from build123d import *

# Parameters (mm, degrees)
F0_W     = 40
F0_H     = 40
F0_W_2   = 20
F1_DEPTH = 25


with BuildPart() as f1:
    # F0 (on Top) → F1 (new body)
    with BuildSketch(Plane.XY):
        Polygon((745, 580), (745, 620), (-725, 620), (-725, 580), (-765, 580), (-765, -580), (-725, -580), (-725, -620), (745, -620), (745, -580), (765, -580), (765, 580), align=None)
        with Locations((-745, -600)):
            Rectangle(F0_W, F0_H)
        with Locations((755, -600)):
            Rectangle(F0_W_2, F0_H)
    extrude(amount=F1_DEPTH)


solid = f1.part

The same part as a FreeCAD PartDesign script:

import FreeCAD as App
import Part
import Sketcher
Q = App.Units.Quantity

doc = App.newDocument("Part")
body = doc.addObject("PartDesign::Body", "Body")

# Sketch on XY plane
sketch1 = body.newObject("Sketcher::SketchObject", "Sketch")
sketch1.AttachmentSupport = (doc.getObject("XY_Plane"), [""])
sketch1.MapMode = "FlatFace"
sketch1.addGeometry([
    Part.LineSegment(App.Vector(745, 580, 0), App.Vector(745, 620, 0)),  # 0
    Part.LineSegment(App.Vector(745, 620, 0), App.Vector(-725, 620, 0)),  # 1
    Part.LineSegment(App.Vector(-725, 620, 0), App.Vector(-725, 580, 0)),  # 2
    Part.LineSegment(App.Vector(-725, 580, 0), App.Vector(-765, 580, 0)),  # 3
    Part.LineSegment(App.Vector(-765, 580, 0), App.Vector(-765, -620, 0)),  # 4
    Part.LineSegment(App.Vector(-765, -620, 0), App.Vector(765, -620, 0)),  # 5
    Part.LineSegment(App.Vector(765, -620, 0), App.Vector(765, 580, 0)),  # 6
    Part.LineSegment(App.Vector(765, 580, 0), App.Vector(745, 580, 0)),  # 7
], False)
sketch1.addConstraint([
    Sketcher.Constraint("Coincident", 0, 2, 1, 1),
    Sketcher.Constraint("Coincident", 1, 2, 2, 1),
    Sketcher.Constraint("Coincident", 2, 2, 3, 1),
    Sketcher.Constraint("Coincident", 3, 2, 4, 1),
    Sketcher.Constraint("Coincident", 4, 2, 5, 1),
    Sketcher.Constraint("Coincident", 5, 2, 6, 1),
    Sketcher.Constraint("Coincident", 6, 2, 7, 1),
    Sketcher.Constraint("Coincident", 7, 2, 0, 1),
    Sketcher.Constraint("Vertical", 0),
    Sketcher.Constraint("Horizontal", 1),
    Sketcher.Constraint("Vertical", 2),
    Sketcher.Constraint("Horizontal", 3),
    Sketcher.Constraint("Vertical", 4),
    Sketcher.Constraint("Horizontal", 5),
    Sketcher.Constraint("Vertical", 6),
    Sketcher.Constraint("Horizontal", 7),
    Sketcher.Constraint("Symmetric", 3, 2, 6, 2, -2),
    Sketcher.Constraint("Equal", 3, 0),
    Sketcher.Constraint("DistanceX", 1, 2, 1, 1, Q("1470 mm")),
    Sketcher.Constraint("DistanceX", 3, 2, 3, 1, Q("40 mm")),
    Sketcher.Constraint("DistanceX", 5, 1, 5, 2, Q("1530 mm")),
    Sketcher.Constraint("DistanceY", 4, 2, 4, 1, Q("1200 mm")),
    Sketcher.Constraint("DistanceY", -1, 1, 0, 2, Q("620 mm")),
])
pad1 = body.newObject("PartDesign::Pad", "Pad")
pad1.Profile = sketch1
pad1.Length = 25

doc.recompute()
